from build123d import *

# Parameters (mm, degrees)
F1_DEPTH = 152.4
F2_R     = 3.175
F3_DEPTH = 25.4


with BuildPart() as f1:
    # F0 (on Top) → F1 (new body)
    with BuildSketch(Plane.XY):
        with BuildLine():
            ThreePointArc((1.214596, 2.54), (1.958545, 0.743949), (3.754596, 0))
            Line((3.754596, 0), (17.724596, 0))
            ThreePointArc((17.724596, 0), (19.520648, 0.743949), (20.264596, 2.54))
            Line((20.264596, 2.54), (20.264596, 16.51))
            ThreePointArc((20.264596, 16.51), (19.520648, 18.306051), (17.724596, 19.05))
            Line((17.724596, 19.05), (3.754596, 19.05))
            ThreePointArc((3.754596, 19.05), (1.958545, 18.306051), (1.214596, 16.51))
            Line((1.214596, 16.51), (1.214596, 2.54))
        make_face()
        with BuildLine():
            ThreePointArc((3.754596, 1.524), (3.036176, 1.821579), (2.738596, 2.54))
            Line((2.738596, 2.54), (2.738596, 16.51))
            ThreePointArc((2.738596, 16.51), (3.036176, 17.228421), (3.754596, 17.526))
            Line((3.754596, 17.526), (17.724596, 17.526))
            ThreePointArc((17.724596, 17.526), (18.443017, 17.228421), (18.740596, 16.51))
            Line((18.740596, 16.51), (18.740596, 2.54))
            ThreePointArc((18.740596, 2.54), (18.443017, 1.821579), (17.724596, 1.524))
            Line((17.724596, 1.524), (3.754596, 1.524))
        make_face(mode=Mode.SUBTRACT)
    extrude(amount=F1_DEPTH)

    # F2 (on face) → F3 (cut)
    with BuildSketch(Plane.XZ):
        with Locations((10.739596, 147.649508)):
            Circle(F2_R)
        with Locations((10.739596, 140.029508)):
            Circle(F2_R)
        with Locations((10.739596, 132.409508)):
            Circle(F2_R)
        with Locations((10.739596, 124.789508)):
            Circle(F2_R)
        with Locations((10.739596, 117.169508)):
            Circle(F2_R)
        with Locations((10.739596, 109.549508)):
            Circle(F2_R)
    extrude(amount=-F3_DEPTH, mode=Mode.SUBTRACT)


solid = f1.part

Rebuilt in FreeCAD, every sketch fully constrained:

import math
import FreeCAD as App
import Part
import Sketcher
Q = App.Units.Quantity

doc = App.newDocument("Part")
params = doc.addObject("Spreadsheet::Sheet", "Params")
for row, (alias, value) in enumerate([
    ("sketch1_radius", "0.1 in"),
    ("sketch1_radius2", "0.04 in"),
    ("sketch1_width", "0.55 in"),
    ("pad1_length", "6 in"),
    ("sketch2_diameter", "0.25 in"),
    ("pocket1_length", "1 in"),
], start=1):
    params.set(f"A{row}", alias)
    params.set(f"B{row}", "=" + value)
    params.setAlias(f"B{row}", alias)

body = doc.addObject("PartDesign::Body", "Body")

sketch1 = body.newObject("Sketcher::SketchObject", "Sketch")
sketch1.AttachmentSupport = (doc.getObject("XY_Plane"), [""])
sketch1.MapMode = "FlatFace"
sketch1.addGeometry([
    Part.ArcOfCircle(Part.Circle(App.Vector(3.754597, 2.540001, 0), App.Vector(0, 0, 1), 2.540001), math.radians(-179.999983), math.radians(-90.000017)),
    Part.LineSegment(App.Vector(3.754596, 0, 0), App.Vector(17.724596, 0, 0)),
    Part.ArcOfCircle(Part.Circle(App.Vector(17.724597, 2.539999, 0), App.Vector(0, 0, 1), 2.539999), math.radians(-90.000021), math.radians(0.000021)),
    Part.LineSegment(App.Vector(20.264596, 2.54, 0), App.Vector(20.264596, 16.51, 0)),
    Part.ArcOfCircle(Part.Circle(App.Vector(17.724597, 16.510001, 0), App.Vector(0, 0, 1), 2.539999), math.radians(-0.000021), math.radians(90.000021)),
    Part.LineSegment(App.Vector(17.724596, 19.05, 0), App.Vector(3.754596, 19.05, 0)),
    Part.ArcOfCircle(Part.Circle(App.Vector(3.754597, 16.509999, 0), App.Vector(0, 0, 1), 2.540001), math.radians(90.000017), math.radians(179.999983)),
    Part.LineSegment(App.Vector(1.214596, 16.51, 0), App.Vector(1.214596, 2.54, 0)),
    Part.LineSegment(App.Vector(17.724596, 1.524, 0), App.Vector(3.754596, 1.524, 0)),
    Part.ArcOfCircle(Part.Circle(App.Vector(3.754596, 2.54, 0), App.Vector(0, 0, 1), 1.016), math.radians(179.999998), math.radians(270.000002)),
    Part.LineSegment(App.Vector(2.738596, 2.54, 0), App.Vector(2.738596, 16.51, 0)),
    Part.ArcOfCircle(Part.Circle(App.Vector(3.754596, 16.51, 0), App.Vector(0, 0, 1), 1.016), math.radians(89.999998), math.radians(180.000002)),
    Part.LineSegment(App.Vector(3.754596, 17.526, 0), App.Vector(17.724596, 17.526, 0)),
    Part.ArcOfCircle(Part.Circle(App.Vector(17.724598, 16.510002, 0), App.Vector(0, 0, 1), 1.015998), math.radians(-0.000098), math.radians(90.000098)),
    Part.LineSegment(App.Vector(18.740596, 16.51, 0), App.Vector(18.740596, 2.54, 0)),
    Part.ArcOfCircle(Part.Circle(App.Vector(17.724598, 2.539998, 0), App.Vector(0, 0, 1), 1.015998), math.radians(-90.000098), math.radians(0.000098)),
], False)
sketch1.addConstraint([
    Sketcher.Constraint("Tangent", 0, 2, 1, 1),
    Sketcher.Constraint("Tangent", 1, 2, 2, 1),
    Sketcher.Constraint("Tangent", 2, 2, 3, 1),
    Sketcher.Constraint("Tangent", 3, 2, 4, 1),
    Sketcher.Constraint("Tangent", 4, 2, 5, 1),
    Sketcher.Constraint("Tangent", 5, 2, 6, 1),
    Sketcher.Constraint("Tangent", 6, 2, 7, 1),
    Sketcher.Constraint("Tangent", 7, 2, 0, 1),
    Sketcher.Constraint("Tangent", 8, 2, 9, 2),
    Sketcher.Constraint("Tangent", 9, 1, 10, 1),
    Sketcher.Constraint("Tangent", 10, 2, 11, 2),
    Sketcher.Constraint("Tangent", 11, 1, 12, 1),
    Sketcher.Constraint("Tangent", 12, 2, 13, 2),
    Sketcher.Constraint("Tangent", 13, 1, 14, 1),
    Sketcher.Constraint("Tangent", 14, 2, 15, 2),
    Sketcher.Constraint("Tangent", 15, 1, 8, 1),
    Sketcher.Constraint("Horizontal", 1),
    Sketcher.Constraint("Vertical", 3),
    Sketcher.Constraint("Horizontal", 5),
    Sketcher.Constraint("Vertical", 7),
    Sketcher.Constraint("Horizontal", 8),
    Sketcher.Constraint("Vertical", 10),
    Sketcher.Constraint("Horizontal", 12),
    Sketcher.Constraint("Vertical", 14),
    Sketcher.Constraint("Coincident", 9, 3, 0, 3),
    Sketcher.Constraint("Coincident", 11, 3, 6, 3),
    Sketcher.Constraint("Coincident", 13, 3, 4, 3),
    Sketcher.Constraint("Equal", 0, 2),
    Sketcher.Constraint("Equal", 2, 4),
    Sketcher.Constraint("Equal", 4, 6),
    Sketcher.Constraint("Equal", 13, 15),
    Sketcher.Constraint("PointOnObject", 0, 2, -1),
    Sketcher.Constraint("Equal", 12, 3),
    Sketcher.Constraint("Radius", 0, Q("0.1 in")),
    Sketcher.Constraint("Radius", 9, Q("0.04 in")),
    Sketcher.Constraint("DistanceX", 1, 1, 1, 2, Q("0.55 in")),
    Sketcher.Constraint("DistanceX", -1, 1, 0, 3, Q("3.754597 mm")),
])
sketch1.setExpression("Constraints[33]", "Params.sketch1_radius")
sketch1.setExpression("Constraints[34]", "Params.sketch1_radius2")
sketch1.setExpression("Constraints[35]", "Params.sketch1_width")
pad1 = body.newObject("PartDesign::Pad", "Pad")
pad1.Profile = sketch1
pad1.setExpression("Length", "Params.pad1_length")

sketch2 = body.newObject("Sketcher::SketchObject", "Sketch001")
sketch2.AttachmentSupport = (doc.getObject("XZ_Plane"), [""])
sketch2.MapMode = "FlatFace"
sketch2.addGeometry([
    Part.Circle(App.Vector(10.739596, 147.649508, 0), App.Vector(0, 0, 1), 3.175),
    Part.Circle(App.Vector(10.739596, 140.029508, 0), App.Vector(0, 0, 1), 3.175),
    Part.Circle(App.Vector(10.739596, 132.409508, 0), App.Vector(0, 0, 1), 3.175),
    Part.Circle(App.Vector(10.739596, 124.789508, 0), App.Vector(0, 0, 1), 3.175),
    Part.Circle(App.Vector(10.739596, 117.169508, 0), App.Vector(0, 0, 1), 3.175),
    Part.Circle(App.Vector(10.739596, 109.549508, 0), App.Vector(0, 0, 1), 3.175),
], False)
sketch2.addConstraint([
    Sketcher.Constraint("Equal", 0, 1),
    Sketcher.Constraint("Equal", 1, 2),
    Sketcher.Constraint("Equal", 2, 3),
    Sketcher.Constraint("Equal", 3, 4),
    Sketcher.Constraint("Equal", 4, 5),
    Sketcher.Constraint("Vertical", 0, 3, 1, 3),
    Sketcher.Constraint("Vertical", 1, 3, 2, 3),
    Sketcher.Constraint("Vertical", 2, 3, 3, 3),
    Sketcher.Constraint("Vertical", 3, 3, 4, 3),
    Sketcher.Constraint("Vertical", 4, 3, 5, 3),
    Sketcher.Constraint("Diameter", 0, Q("0.25 in")),
    Sketcher.Constraint("DistanceY", 1, 3, 0, 3, Q("0.3 in")),
    Sketcher.Constraint("DistanceY", 2, 3, 1, 3, Q("0.3 in")),
    Sketcher.Constraint("DistanceY", 3, 3, 2, 3, Q("0.3 in")),
    Sketcher.Constraint("DistanceY", 4, 3, 3, 3, Q("0.3 in")),
    Sketcher.Constraint("DistanceY", 5, 3, 4, 3, Q("0.3 in")),
    Sketcher.Constraint("DistanceY", -1, 1, 0, 3, Q("147.649508 mm")),
    Sketcher.Constraint("DistanceX", -1, 1, 0, 3, Q("10.739596 mm")),
])
sketch2.setExpression("Constraints[10]", "Params.sketch2_diameter")
pocket1 = body.newObject("PartDesign::Pocket", "Pocket")
pocket1.Profile = sketch2
pocket1.setExpression("Length", "Params.pocket1_length")

doc.recompute()
